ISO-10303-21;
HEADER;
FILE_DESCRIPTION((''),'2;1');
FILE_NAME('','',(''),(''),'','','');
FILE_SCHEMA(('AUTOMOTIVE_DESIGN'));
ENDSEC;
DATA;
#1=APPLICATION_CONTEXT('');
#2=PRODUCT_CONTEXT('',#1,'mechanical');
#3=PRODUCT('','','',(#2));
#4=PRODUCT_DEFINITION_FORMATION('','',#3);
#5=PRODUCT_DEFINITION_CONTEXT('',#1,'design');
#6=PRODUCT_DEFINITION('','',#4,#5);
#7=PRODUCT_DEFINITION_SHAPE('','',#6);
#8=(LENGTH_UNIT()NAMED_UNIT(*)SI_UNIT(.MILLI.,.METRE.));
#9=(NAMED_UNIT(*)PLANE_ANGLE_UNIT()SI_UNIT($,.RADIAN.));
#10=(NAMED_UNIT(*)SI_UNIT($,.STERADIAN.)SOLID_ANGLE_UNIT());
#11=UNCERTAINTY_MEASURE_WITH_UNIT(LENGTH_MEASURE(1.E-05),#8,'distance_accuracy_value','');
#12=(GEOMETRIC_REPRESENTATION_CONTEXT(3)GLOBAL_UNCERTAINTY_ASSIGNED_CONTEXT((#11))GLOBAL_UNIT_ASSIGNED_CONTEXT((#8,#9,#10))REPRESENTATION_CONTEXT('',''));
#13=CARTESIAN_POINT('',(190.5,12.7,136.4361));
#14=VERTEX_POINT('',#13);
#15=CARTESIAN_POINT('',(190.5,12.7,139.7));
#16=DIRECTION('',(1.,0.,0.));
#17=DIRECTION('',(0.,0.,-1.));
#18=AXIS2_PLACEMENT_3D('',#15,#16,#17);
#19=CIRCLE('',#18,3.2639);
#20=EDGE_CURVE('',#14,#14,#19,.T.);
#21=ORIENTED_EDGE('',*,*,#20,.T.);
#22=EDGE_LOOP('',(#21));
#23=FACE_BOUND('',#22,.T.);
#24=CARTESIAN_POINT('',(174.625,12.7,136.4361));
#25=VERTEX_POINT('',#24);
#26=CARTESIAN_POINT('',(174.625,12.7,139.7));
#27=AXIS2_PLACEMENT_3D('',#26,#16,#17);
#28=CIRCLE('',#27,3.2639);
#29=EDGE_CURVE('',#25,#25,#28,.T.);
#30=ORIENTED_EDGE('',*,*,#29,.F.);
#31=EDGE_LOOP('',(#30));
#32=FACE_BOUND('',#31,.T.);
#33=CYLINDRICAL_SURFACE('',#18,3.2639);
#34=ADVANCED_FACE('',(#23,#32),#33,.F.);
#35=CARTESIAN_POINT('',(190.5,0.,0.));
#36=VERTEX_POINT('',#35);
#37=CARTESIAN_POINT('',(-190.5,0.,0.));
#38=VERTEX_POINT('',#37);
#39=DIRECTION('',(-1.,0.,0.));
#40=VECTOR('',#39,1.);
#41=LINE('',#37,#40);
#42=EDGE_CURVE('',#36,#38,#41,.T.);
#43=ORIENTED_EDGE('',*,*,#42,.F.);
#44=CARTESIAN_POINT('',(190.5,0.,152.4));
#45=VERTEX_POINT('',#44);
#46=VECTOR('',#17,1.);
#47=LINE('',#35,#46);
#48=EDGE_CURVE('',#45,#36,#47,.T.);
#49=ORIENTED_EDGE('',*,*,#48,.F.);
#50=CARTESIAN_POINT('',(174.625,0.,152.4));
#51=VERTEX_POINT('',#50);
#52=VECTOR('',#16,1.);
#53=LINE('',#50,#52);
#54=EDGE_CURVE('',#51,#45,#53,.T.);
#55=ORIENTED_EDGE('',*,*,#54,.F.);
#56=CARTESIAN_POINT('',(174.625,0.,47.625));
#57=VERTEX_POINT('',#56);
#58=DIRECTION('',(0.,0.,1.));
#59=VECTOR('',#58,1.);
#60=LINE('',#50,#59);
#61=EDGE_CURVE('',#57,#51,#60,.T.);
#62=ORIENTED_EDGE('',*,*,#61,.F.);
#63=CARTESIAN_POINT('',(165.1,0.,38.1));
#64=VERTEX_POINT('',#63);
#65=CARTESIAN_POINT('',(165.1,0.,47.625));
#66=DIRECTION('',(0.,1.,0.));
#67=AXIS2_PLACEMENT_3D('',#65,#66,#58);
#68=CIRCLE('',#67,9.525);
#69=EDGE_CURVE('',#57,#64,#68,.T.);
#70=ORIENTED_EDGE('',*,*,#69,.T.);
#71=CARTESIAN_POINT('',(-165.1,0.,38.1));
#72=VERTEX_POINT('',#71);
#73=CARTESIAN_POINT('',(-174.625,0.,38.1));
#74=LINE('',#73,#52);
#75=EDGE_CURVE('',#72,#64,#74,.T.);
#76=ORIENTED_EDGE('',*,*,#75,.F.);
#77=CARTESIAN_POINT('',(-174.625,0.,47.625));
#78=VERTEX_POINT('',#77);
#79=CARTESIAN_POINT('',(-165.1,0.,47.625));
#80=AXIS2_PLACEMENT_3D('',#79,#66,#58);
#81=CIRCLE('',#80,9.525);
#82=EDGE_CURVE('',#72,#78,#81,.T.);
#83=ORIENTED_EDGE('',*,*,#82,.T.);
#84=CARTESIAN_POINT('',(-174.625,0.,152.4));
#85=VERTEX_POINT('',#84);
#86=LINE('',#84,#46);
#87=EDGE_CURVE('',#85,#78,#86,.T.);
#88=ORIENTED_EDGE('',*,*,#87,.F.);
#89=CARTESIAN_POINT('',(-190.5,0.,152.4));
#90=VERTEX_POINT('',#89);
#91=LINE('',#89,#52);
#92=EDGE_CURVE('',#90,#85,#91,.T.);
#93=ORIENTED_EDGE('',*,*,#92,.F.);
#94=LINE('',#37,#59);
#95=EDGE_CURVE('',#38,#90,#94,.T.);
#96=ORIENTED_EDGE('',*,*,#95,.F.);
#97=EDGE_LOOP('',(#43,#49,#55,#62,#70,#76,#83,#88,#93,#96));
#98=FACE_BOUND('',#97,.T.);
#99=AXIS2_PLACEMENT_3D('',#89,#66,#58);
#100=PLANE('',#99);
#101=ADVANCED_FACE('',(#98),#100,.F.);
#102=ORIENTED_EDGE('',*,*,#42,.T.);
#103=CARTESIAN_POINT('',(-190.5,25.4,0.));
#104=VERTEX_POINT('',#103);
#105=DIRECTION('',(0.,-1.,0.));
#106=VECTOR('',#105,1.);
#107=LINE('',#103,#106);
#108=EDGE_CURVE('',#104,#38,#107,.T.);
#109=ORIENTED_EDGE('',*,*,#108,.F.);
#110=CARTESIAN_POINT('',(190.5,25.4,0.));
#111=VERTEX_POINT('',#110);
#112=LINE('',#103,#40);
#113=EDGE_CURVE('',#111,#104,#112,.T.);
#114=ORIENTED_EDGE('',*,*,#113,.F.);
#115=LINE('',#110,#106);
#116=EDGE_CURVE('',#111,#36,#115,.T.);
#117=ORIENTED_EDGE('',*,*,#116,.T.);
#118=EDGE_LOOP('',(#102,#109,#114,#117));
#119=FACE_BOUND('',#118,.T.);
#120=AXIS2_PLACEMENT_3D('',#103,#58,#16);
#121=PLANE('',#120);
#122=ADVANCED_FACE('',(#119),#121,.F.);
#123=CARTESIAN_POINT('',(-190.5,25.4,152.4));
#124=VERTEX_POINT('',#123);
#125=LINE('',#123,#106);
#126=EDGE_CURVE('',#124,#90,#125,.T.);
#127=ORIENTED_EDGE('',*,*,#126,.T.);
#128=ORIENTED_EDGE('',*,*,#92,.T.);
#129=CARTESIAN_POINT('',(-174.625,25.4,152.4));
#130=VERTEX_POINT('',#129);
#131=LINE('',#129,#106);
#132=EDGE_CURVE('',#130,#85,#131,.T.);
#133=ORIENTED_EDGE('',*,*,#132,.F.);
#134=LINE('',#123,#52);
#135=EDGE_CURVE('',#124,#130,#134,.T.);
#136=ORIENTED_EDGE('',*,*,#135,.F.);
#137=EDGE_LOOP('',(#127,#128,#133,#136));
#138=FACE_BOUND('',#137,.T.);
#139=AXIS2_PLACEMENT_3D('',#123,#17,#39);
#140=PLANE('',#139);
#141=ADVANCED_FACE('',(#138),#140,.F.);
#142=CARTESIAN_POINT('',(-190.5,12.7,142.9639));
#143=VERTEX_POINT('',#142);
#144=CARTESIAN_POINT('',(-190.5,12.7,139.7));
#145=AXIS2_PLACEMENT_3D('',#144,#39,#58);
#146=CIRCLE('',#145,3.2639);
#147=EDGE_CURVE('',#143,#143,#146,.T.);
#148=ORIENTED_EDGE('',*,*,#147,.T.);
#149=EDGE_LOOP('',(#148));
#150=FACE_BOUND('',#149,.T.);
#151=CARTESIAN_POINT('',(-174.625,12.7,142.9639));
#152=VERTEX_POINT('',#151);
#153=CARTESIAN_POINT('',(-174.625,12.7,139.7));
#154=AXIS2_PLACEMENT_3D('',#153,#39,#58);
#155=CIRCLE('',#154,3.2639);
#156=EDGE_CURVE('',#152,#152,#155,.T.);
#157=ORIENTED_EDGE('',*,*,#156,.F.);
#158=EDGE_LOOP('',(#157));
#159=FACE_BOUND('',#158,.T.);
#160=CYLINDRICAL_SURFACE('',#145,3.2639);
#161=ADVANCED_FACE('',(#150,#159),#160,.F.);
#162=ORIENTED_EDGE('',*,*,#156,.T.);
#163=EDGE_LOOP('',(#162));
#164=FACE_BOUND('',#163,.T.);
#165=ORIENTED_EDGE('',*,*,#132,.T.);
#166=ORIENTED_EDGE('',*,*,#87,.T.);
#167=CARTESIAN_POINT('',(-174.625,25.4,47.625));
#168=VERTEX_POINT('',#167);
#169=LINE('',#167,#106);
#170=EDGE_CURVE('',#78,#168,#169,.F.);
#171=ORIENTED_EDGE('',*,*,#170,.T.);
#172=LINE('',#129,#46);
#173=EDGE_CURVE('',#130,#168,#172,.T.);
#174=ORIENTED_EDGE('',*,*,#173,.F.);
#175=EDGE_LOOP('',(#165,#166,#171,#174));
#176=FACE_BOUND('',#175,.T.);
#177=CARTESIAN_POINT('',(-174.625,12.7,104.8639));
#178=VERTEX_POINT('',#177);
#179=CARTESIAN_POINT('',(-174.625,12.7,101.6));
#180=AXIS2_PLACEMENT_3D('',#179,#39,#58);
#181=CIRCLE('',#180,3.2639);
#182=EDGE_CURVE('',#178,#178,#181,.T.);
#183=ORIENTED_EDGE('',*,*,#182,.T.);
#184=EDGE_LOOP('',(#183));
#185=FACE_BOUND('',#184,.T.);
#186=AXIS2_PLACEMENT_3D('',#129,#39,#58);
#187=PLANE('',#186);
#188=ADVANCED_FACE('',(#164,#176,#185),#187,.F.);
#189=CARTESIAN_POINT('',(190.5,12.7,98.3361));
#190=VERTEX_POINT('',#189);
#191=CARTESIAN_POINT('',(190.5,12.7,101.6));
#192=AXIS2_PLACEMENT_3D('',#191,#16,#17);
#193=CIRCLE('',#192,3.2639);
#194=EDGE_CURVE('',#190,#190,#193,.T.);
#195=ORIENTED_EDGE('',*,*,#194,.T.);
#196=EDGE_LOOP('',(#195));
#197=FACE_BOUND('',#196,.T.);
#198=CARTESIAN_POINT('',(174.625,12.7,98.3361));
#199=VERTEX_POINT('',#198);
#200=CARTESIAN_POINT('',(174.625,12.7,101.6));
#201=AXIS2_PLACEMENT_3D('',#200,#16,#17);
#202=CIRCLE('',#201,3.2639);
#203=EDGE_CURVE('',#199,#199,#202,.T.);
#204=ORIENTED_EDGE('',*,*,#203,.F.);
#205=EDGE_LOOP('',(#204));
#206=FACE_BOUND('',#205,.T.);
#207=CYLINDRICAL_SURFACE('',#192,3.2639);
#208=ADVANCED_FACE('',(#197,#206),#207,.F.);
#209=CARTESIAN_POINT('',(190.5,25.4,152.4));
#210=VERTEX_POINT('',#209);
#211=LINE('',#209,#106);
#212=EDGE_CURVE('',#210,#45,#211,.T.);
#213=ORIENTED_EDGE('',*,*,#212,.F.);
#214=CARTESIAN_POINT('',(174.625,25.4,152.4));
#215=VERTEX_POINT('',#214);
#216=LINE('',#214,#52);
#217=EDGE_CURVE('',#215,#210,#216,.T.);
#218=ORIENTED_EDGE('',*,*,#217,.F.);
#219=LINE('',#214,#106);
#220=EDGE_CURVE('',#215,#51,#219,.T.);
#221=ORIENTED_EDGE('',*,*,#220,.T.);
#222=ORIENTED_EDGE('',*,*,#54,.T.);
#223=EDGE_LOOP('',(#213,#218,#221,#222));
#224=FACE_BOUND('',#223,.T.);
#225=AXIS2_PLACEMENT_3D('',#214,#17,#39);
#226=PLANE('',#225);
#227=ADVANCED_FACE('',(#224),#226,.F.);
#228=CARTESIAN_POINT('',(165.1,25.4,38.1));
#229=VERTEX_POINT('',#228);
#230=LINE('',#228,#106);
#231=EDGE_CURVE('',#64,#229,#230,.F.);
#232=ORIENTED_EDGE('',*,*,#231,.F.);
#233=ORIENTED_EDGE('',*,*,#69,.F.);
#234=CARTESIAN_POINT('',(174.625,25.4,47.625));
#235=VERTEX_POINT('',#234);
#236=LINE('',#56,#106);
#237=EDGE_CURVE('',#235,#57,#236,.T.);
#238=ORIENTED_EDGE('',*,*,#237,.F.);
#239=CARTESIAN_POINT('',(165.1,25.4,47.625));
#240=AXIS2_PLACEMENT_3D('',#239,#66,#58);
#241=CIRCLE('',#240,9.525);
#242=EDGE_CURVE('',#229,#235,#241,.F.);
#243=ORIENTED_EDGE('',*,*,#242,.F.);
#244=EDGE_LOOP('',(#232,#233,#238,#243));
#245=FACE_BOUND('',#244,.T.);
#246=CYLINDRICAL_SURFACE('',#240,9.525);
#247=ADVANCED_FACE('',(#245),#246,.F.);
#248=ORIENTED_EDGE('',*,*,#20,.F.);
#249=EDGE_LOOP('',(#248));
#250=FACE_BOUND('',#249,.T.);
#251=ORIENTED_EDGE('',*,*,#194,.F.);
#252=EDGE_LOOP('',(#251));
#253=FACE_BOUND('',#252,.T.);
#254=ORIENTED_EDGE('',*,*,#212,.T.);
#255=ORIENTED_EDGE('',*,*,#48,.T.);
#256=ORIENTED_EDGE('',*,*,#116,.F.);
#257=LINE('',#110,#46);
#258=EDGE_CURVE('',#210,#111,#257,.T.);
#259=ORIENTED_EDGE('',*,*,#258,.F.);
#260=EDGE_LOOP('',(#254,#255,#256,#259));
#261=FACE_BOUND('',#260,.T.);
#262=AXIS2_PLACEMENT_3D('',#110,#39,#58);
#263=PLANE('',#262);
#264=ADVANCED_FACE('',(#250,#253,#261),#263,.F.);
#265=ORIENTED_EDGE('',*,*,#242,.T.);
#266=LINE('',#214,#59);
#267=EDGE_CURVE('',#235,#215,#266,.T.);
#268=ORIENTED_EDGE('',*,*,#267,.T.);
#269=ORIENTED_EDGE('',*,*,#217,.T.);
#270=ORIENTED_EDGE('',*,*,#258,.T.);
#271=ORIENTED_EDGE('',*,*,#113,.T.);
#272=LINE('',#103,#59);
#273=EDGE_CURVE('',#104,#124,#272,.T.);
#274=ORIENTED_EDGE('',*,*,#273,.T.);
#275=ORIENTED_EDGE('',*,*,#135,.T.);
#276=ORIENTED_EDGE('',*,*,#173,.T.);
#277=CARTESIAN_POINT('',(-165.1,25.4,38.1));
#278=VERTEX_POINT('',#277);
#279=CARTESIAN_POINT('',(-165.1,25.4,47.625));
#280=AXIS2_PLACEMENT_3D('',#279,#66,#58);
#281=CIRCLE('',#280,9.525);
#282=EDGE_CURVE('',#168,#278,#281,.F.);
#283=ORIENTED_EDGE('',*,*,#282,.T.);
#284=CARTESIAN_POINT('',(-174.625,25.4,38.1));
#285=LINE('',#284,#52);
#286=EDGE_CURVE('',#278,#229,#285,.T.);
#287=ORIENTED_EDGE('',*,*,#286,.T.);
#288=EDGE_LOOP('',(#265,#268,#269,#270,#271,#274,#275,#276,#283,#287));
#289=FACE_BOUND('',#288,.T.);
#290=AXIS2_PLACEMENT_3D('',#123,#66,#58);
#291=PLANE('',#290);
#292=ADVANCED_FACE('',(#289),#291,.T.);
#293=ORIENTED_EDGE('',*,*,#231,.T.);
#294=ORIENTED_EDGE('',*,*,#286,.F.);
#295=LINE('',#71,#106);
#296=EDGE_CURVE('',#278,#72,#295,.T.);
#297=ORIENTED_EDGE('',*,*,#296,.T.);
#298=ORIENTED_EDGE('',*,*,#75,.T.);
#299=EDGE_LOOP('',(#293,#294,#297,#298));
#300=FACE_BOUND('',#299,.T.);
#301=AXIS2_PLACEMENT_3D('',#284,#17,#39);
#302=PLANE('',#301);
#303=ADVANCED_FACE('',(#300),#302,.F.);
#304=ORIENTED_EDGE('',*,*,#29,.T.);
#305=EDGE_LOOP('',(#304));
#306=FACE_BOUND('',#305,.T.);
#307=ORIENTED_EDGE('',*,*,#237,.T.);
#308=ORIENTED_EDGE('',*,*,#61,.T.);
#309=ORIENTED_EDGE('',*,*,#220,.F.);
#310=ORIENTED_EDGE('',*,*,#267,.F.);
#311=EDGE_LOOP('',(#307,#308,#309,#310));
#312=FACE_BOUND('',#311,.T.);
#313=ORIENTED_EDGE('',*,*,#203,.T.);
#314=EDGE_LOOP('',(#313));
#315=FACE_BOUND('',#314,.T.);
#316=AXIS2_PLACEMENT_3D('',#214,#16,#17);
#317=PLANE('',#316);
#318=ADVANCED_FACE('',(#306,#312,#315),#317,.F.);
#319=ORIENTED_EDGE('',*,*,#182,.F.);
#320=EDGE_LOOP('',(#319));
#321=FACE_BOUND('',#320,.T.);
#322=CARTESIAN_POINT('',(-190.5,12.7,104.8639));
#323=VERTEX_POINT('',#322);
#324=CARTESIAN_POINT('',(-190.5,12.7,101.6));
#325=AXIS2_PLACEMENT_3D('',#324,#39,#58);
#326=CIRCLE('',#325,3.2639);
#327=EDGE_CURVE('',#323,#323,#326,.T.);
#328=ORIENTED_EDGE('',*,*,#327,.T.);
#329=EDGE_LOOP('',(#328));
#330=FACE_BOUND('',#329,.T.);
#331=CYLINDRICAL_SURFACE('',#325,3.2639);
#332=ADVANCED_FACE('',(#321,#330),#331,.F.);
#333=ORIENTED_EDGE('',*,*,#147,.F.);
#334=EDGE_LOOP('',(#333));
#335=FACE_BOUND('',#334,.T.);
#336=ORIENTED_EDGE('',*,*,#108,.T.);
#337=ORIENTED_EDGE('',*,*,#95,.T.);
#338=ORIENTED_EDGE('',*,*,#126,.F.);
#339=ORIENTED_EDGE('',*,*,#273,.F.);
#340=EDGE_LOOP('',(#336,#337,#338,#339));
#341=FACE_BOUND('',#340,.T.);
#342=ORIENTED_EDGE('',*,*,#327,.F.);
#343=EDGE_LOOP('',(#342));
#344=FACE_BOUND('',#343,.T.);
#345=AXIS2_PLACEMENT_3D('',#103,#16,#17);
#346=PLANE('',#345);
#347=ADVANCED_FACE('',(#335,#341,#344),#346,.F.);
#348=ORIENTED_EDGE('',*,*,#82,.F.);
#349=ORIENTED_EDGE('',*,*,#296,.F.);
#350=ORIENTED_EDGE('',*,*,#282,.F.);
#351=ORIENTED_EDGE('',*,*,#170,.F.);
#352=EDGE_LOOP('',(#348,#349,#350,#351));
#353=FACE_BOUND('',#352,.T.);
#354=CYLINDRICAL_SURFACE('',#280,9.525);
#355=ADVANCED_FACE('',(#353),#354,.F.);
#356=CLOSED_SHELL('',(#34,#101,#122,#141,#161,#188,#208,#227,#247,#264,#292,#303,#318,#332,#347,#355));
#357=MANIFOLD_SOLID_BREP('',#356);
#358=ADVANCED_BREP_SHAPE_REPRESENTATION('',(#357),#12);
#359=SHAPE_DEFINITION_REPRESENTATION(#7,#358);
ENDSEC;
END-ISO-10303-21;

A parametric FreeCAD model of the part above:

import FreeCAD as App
import Part
import Sketcher

V = App.Vector
Q = App.Units.Quantity


def edges_at(feature, points):
    """Names of the edges that pass closest to the given points."""
    edges = feature.Shape.Edges
    near = lambda p: min(range(len(edges)), key=lambda i: edges[i].distToShape(Part.Vertex(*p))[0])
    return sorted({f"Edge{near(p) + 1}" for p in points})

doc = App.newDocument("Part")
body = doc.addObject("PartDesign::Body", "Body")

# Sketch on XZ plane
sketch1 = doc.addObject("Sketcher::SketchObject", "Sketch")
body.addObject(sketch1)
sketch1.AttachmentSupport = (doc.XZ_Plane, [""])
sketch1.MapMode = "FlatFace"
sketch1.addGeometry(Part.LineSegment(V(175, 152, 0), V(190, 152, 0)), False)
sketch1.addGeometry(Part.LineSegment(V(190, 152, 0), V(190, 0, 0)), False)
sketch1.addGeometry(Part.LineSegment(V(190, 0, 0), V(-190, 0, 0)), False)
sketch1.addGeometry(Part.LineSegment(V(-190, 0, 0), V(-190, 152, 0)), False)
sketch1.addGeometry(Part.LineSegment(V(-190, 152, 0), V(-175, 152, 0)), False)
sketch1.addGeometry(Part.LineSegment(V(-175, 152, 0), V(-175, 38, 0)), False)
sketch1.addGeometry(Part.LineSegment(V(-175, 38, 0), V(175, 38, 0)), False)
sketch1.addGeometry(Part.LineSegment(V(175, 38, 0), V(175, 152, 0)), False)
sketch1.addConstraint(Sketcher.Constraint("Coincident", 0, 2, 1, 1))
sketch1.addConstraint(Sketcher.Constraint("Coincident", 1, 2, 2, 1))
sketch1.addConstraint(Sketcher.Constraint("Coincident", 2, 2, 3, 1))
sketch1.addConstraint(Sketcher.Constraint("Coincident", 3, 2, 4, 1))
sketch1.addConstraint(Sketcher.Constraint("Coincident", 4, 2, 5, 1))
sketch1.addConstraint(Sketcher.Constraint("Coincident", 5, 2, 6, 1))
sketch1.addConstraint(Sketcher.Constraint("Coincident", 6, 2, 7, 1))
sketch1.addConstraint(Sketcher.Constraint("Coincident", 7, 2, 0, 1))
sketch1.addConstraint(Sketcher.Constraint("Horizontal", 0))
sketch1.addConstraint(Sketcher.Constraint("Vertical", 1))
sketch1.addConstraint(Sketcher.Constraint("Horizontal", 2))
sketch1.addConstraint(Sketcher.Constraint("Vertical", 3))
sketch1.addConstraint(Sketcher.Constraint("Horizontal", 4))
sketch1.addConstraint(Sketcher.Constraint("Vertical", 5))
sketch1.addConstraint(Sketcher.Constraint("Horizontal", 6))
sketch1.addConstraint(Sketcher.Constraint("Vertical", 7))
sketch1.addConstraint(Sketcher.Constraint("Symmetric", 1, 2, 2, 2, -1, 1))
sketch1.addConstraint(Sketcher.Constraint("Symmetric", 4, 2, 7, 2, -2))
sketch1.addConstraint(Sketcher.Constraint("DistanceX", 2, 2, 2, 1, Q("15 in")))
sketch1.addConstraint(Sketcher.Constraint("DistanceY", 1, 2, 1, 1, Q("6 in")))
sketch1.addConstraint(Sketcher.Constraint("DistanceY", 5, 2, 5, 1, Q("4.5 in")))
sketch1.addConstraint(Sketcher.Constraint("DistanceX", 6, 1, 6, 2, Q("13.75 in")))
pad1 = doc.addObject("PartDesign::Pad", "Pad")
body.addObject(pad1)
pad1.Profile = sketch1
pad1.Length = Q("1 in")
pad1.Reversed = True
doc.recompute()

fillet = doc.addObject("PartDesign::Fillet", "Fillet")
body.addObject(fillet)
fillet.Base = (pad1, edges_at(pad1, [(174.625, 12.7, 38.1), (-174.625, 12.7, 38.1)]))
fillet.Radius = Q("0.375 in")

# Sketch on YZ plane
sketch2 = doc.addObject("Sketcher::SketchObject", "Sketch001")
body.addObject(sketch2)
sketch2.AttachmentSupport = (doc.YZ_Plane, [""])
sketch2.MapMode = "FlatFace"
sketch2.AttachmentOffset = App.Placement(V(0, 0, 7.5 * 25.4), App.Rotation())
sketch2.addGeometry(Part.Circle(V(12.7, 139.7, 0), V(0, 0, 1), 3.3), False)
sketch2.addGeometry(Part.Circle(V(12.7, 101.6, 0), V(0, 0, 1), 3.3), False)
sketch2.addConstraint(Sketcher.Constraint("Equal", 0, 1))
sketch2.addConstraint(Sketcher.Constraint("Vertical", 0, 3, 1, 3))
sketch2.addConstraint(Sketcher.Constraint("Diameter", 0, Q("0.257 in")))
sketch2.addConstraint(Sketcher.Constraint("DistanceY", -1, 1, 1, 3, Q("4 in")))
sketch2.addConstraint(Sketcher.Constraint("DistanceX", -1, 1, 0, 3, Q("0.5 in")))
sketch2.addConstraint(Sketcher.Constraint("DistanceY", -1, 1, 0, 3, Q("5.5 in")))
doc.recompute()
hole = doc.addObject("PartDesign::Hole", "Hole")
body.addObject(hole)
hole.Profile = sketch2
hole.ThreadType = "None"
hole.Diameter = Q("0.257 in")
hole.DepthType = "Dimension"
hole.Depth = Q("0.625 in")
hole.DrillPoint = "Flat"

# Sketch on YZ plane
sketch3 = doc.addObject("Sketcher::SketchObject", "Sketch002")
body.addObject(sketch3)
sketch3.AttachmentSupport = (doc.YZ_Plane, [""])
sketch3.MapMode = "FlatFace"
sketch3.AttachmentOffset = App.Placement(V(0, 0, -7.5 * 25.4), App.Rotation())
sketch3.addGeometry(Part.Circle(V(12.7, 101.6, 0), V(0, 0, 1), 3.3), False)
sketch3.addGeometry(Part.Circle(V(12.7, 139.7, 0), V(0, 0, 1), 3.3), False)
sketch3.addConstraint(Sketcher.Constraint("Equal", 0, 1))
sketch3.addConstraint(Sketcher.Constraint("Vertical", 0, 3, 1, 3))
sketch3.addConstraint(Sketcher.Constraint("Diameter", 0, Q("0.257 in")))
sketch3.addConstraint(Sketcher.Constraint("DistanceY", -1, 1, 0, 3, Q("4 in")))
sketch3.addConstraint(Sketcher.Constraint("DistanceX", -1, 1, 0, 3, Q("0.5 in")))
sketch3.addConstraint(Sketcher.Constraint("DistanceY", -1, 1, 1, 3, Q("5.5 in")))
doc.recompute()
hole2 = doc.addObject("PartDesign::Hole", "Hole001")
body.addObject(hole2)
hole2.Profile = sketch3
hole2.ThreadType = "None"
hole2.Diameter = Q("0.257 in")
hole2.DepthType = "ThroughAll"
hole2.Reversed = True

doc.recompute()
